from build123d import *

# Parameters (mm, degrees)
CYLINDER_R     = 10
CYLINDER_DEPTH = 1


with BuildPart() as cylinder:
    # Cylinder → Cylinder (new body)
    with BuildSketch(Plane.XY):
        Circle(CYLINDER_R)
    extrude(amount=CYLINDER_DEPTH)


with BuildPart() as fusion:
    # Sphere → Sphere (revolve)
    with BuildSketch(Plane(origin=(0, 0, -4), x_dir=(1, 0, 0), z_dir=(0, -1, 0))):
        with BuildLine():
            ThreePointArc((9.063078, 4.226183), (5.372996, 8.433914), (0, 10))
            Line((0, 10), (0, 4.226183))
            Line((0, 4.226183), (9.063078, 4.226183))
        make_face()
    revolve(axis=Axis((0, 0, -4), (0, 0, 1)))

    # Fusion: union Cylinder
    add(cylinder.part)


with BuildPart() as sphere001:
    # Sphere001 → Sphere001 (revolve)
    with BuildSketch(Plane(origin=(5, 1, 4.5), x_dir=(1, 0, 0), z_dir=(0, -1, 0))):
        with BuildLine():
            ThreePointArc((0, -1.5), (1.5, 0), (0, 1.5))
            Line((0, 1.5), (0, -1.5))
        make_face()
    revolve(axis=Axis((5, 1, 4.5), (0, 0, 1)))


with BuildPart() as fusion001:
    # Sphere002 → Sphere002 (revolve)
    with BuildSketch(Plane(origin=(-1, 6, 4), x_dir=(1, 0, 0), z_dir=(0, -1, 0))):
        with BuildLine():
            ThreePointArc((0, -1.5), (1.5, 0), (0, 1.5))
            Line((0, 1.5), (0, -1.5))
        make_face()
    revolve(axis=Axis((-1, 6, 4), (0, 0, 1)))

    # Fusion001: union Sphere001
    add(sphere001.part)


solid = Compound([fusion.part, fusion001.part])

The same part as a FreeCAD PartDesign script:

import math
import FreeCAD as App
import Part
import Sketcher
Q = App.Units.Quantity

doc = App.newDocument("Part")
params = doc.addObject("Spreadsheet::Sheet", "Params")
for row, (alias, value) in enumerate([
    ("sketch1_diameter", "20 mm"),
    ("pad1_length", "1 mm"),
    ("revolution_angle", "360 deg"),
    ("sketch3_radius", "1.5 mm"),
    ("revolution2_angle", "360 deg"),
    ("sketch4_radius", "1.5 mm"),
    ("revolution3_angle", "360 deg"),
], start=1):
    params.set(f"A{row}", alias)
    params.set(f"B{row}", "=" + value)
    params.setAlias(f"B{row}", alias)

body = doc.addObject("PartDesign::Body", "Body")

# Sketch on XY plane
sketch1 = doc.addObject("Sketcher::SketchObject", "Sketch")
body.addObject(sketch1)
sketch1.AttachmentSupport = (doc.XY_Plane, [""])
sketch1.MapMode = "FlatFace"
sketch1.addGeometry(Part.Circle(App.Vector(0, 0, 0), App.Vector(0, 0, 1), 10), False)
sketch1.addConstraint([
    Sketcher.Constraint("Coincident", 0, 3, -1, 1),
    Sketcher.Constraint("Diameter", 0, Q("20 mm")),
])
sketch1.setExpression("Constraints[1]", "Params.sketch1_diameter")
pad1 = doc.addObject("PartDesign::Pad", "Pad")
body.addObject(pad1)
pad1.Profile = sketch1
pad1.setExpression("Length", "Params.pad1_length")
body2 = doc.addObject("PartDesign::Body", "Body001")

# Sketch on XZ plane
sketch2 = doc.addObject("Sketcher::SketchObject", "Sketch001")
body2.addObject(sketch2)
sketch2.AttachmentSupport = (doc.getObject("XZ_Plane001"), [""])
sketch2.MapMode = "FlatFace"
sketch2.addGeometry([
    Part.ArcOfCircle(Part.Circle(App.Vector(-0.000002, -4.000003, 0), App.Vector(0, 0, 1), 10.000003), math.radians(25.000014), math.radians(89.99999)),
    Part.LineSegment(App.Vector(0, 6, 0), App.Vector(0, 0.226183, 0)),
    Part.LineSegment(App.Vector(0, 0.226183, 0), App.Vector(9.063078, 0.226183, 0)),
], False)
sketch2.addConstraint([
    Sketcher.Constraint("Coincident", 0, 2, 1, 1),
    Sketcher.Constraint("Coincident", 1, 2, 2, 1),
    Sketcher.Constraint("Coincident", 2, 2, 0, 1),
    Sketcher.Constraint("Vertical", 1),
    Sketcher.Constraint("Horizontal", 2),
    Sketcher.Constraint("PointOnObject", 0, 3, -2),
    Sketcher.Constraint("PointOnObject", 0, 2, -2),
    Sketcher.Constraint("DistanceY", -1, 1, 0, 2, Q("6 mm")),
    Sketcher.Constraint("Radius", 0, Q("10.000003 mm")),
    Sketcher.Constraint("DistanceX", 2, 1, 2, 2, Q("9.063078 mm")),
])
revolution = doc.addObject("PartDesign::Revolution", "Revolution")
body2.addObject(revolution)
revolution.Profile = sketch2
revolution.ReferenceAxis = (sketch2, ["V_Axis"])
revolution.setExpression("Angle", "Params.revolution_angle")
doc.recompute()

boolean = doc.addObject("PartDesign::Boolean", "Boolean")
body2.addObject(boolean)
boolean.Type = "Fuse"
boolean.addObjects([body])
body3 = doc.addObject("PartDesign::Body", "Body002")

# Sketch on XZ plane
sketch3 = doc.addObject("Sketcher::SketchObject", "Sketch002")
body3.addObject(sketch3)
sketch3.AttachmentSupport = (doc.getObject("XZ_Plane002"), [""])
sketch3.MapMode = "FlatFace"
sketch3.AttachmentOffset = App.Placement(App.Vector(0, 0, -1), App.Rotation())
sketch3.addGeometry([
    Part.ArcOfCircle(Part.Circle(App.Vector(5, 4.5, 0), App.Vector(0, 0, 1), 1.5), math.radians(-90), math.radians(90)),
    Part.LineSegment(App.Vector(5, 6, 0), App.Vector(5, 3, 0)),
], False)
sketch3.addGeometry(Part.LineSegment(App.Vector(5, 3, 0), App.Vector(5, 6, 0)), True)  # axis
sketch3.addConstraint([
    Sketcher.Constraint("Coincident", 0, 1, 1, 2),
    Sketcher.Constraint("Coincident", 1, 1, 0, 2),
    Sketcher.Constraint("Vertical", 1),
    Sketcher.Constraint("Vertical", 2),
    Sketcher.Constraint("Coincident", 2, 1, 0, 1),
    Sketcher.Constraint("Equal", 1, 2),
    Sketcher.Constraint("Radius", 0, Q("1.5 mm")),
    Sketcher.Constraint("DistanceX", -1, 1, 0, 3, Q("5 mm")),
    Sketcher.Constraint("DistanceX", -1, 1, 0, 1, Q("5 mm")),
    Sketcher.Constraint("DistanceY", -1, 1, 0, 1, Q("3 mm")),
])
sketch3.setExpression("Constraints[6]", "Params.sketch3_radius")
revolution2 = doc.addObject("PartDesign::Revolution", "Revolution001")
body3.addObject(revolution2)
revolution2.Profile = sketch3
revolution2.ReferenceAxis = (sketch3, ["Axis0"])
revolution2.setExpression("Angle", "Params.revolution2_angle")
body4 = doc.addObject("PartDesign::Body", "Body003")
body4.AllowCompound = True

# Sketch on XZ plane
sketch4 = doc.addObject("Sketcher::SketchObject", "Sketch003")
body4.addObject(sketch4)
sketch4.AttachmentSupport = (doc.getObject("XZ_Plane003"), [""])
sketch4.MapMode = "FlatFace"
sketch4.AttachmentOffset = App.Placement(App.Vector(0, 0, -6), App.Rotation())
sketch4.addGeometry([
    Part.ArcOfCircle(Part.Circle(App.Vector(-1, 4, 0), App.Vector(0, 0, 1), 1.5), math.radians(-90), math.radians(90)),
    Part.LineSegment(App.Vector(-1, 5.5, 0), App.Vector(-1, 2.5, 0)),
], False)
sketch4.addGeometry(Part.LineSegment(App.Vector(-1, 2.5, 0), App.Vector(-1, 5.5, 0)), True)  # axis
sketch4.addConstraint([
    Sketcher.Constraint("Coincident", 0, 1, 1, 2),
    Sketcher.Constraint("Coincident", 1, 1, 0, 2),
    Sketcher.Constraint("Vertical", 1),
    Sketcher.Constraint("Vertical", 2),
    Sketcher.Constraint("Coincident", 2, 1, 0, 1),
    Sketcher.Constraint("Equal", 1, 2),
    Sketcher.Constraint("Radius", 0, Q("1.5 mm")),
    Sketcher.Constraint("DistanceX", 0, 3, -1, 1, Q("1 mm")),
    Sketcher.Constraint("DistanceY", -1, 1, 0, 3, Q("4 mm")),
    Sketcher.Constraint("DistanceX", 0, 1, -1, 1, Q("1 mm")),
])
sketch4.setExpression("Constraints[6]", "Params.sketch4_radius")
revolution3 = doc.addObject("PartDesign::Revolution", "Revolution002")
body4.addObject(revolution3)
revolution3.Profile = sketch4
revolution3.ReferenceAxis = (sketch4, ["Axis0"])
revolution3.setExpression("Angle", "Params.revolution3_angle")
doc.recompute()

boolean2 = doc.addObject("PartDesign::Boolean", "Boolean001")
body4.addObject(boolean2)
boolean2.Type = "Fuse"
boolean2.addObjects([body3])

doc.recompute()
